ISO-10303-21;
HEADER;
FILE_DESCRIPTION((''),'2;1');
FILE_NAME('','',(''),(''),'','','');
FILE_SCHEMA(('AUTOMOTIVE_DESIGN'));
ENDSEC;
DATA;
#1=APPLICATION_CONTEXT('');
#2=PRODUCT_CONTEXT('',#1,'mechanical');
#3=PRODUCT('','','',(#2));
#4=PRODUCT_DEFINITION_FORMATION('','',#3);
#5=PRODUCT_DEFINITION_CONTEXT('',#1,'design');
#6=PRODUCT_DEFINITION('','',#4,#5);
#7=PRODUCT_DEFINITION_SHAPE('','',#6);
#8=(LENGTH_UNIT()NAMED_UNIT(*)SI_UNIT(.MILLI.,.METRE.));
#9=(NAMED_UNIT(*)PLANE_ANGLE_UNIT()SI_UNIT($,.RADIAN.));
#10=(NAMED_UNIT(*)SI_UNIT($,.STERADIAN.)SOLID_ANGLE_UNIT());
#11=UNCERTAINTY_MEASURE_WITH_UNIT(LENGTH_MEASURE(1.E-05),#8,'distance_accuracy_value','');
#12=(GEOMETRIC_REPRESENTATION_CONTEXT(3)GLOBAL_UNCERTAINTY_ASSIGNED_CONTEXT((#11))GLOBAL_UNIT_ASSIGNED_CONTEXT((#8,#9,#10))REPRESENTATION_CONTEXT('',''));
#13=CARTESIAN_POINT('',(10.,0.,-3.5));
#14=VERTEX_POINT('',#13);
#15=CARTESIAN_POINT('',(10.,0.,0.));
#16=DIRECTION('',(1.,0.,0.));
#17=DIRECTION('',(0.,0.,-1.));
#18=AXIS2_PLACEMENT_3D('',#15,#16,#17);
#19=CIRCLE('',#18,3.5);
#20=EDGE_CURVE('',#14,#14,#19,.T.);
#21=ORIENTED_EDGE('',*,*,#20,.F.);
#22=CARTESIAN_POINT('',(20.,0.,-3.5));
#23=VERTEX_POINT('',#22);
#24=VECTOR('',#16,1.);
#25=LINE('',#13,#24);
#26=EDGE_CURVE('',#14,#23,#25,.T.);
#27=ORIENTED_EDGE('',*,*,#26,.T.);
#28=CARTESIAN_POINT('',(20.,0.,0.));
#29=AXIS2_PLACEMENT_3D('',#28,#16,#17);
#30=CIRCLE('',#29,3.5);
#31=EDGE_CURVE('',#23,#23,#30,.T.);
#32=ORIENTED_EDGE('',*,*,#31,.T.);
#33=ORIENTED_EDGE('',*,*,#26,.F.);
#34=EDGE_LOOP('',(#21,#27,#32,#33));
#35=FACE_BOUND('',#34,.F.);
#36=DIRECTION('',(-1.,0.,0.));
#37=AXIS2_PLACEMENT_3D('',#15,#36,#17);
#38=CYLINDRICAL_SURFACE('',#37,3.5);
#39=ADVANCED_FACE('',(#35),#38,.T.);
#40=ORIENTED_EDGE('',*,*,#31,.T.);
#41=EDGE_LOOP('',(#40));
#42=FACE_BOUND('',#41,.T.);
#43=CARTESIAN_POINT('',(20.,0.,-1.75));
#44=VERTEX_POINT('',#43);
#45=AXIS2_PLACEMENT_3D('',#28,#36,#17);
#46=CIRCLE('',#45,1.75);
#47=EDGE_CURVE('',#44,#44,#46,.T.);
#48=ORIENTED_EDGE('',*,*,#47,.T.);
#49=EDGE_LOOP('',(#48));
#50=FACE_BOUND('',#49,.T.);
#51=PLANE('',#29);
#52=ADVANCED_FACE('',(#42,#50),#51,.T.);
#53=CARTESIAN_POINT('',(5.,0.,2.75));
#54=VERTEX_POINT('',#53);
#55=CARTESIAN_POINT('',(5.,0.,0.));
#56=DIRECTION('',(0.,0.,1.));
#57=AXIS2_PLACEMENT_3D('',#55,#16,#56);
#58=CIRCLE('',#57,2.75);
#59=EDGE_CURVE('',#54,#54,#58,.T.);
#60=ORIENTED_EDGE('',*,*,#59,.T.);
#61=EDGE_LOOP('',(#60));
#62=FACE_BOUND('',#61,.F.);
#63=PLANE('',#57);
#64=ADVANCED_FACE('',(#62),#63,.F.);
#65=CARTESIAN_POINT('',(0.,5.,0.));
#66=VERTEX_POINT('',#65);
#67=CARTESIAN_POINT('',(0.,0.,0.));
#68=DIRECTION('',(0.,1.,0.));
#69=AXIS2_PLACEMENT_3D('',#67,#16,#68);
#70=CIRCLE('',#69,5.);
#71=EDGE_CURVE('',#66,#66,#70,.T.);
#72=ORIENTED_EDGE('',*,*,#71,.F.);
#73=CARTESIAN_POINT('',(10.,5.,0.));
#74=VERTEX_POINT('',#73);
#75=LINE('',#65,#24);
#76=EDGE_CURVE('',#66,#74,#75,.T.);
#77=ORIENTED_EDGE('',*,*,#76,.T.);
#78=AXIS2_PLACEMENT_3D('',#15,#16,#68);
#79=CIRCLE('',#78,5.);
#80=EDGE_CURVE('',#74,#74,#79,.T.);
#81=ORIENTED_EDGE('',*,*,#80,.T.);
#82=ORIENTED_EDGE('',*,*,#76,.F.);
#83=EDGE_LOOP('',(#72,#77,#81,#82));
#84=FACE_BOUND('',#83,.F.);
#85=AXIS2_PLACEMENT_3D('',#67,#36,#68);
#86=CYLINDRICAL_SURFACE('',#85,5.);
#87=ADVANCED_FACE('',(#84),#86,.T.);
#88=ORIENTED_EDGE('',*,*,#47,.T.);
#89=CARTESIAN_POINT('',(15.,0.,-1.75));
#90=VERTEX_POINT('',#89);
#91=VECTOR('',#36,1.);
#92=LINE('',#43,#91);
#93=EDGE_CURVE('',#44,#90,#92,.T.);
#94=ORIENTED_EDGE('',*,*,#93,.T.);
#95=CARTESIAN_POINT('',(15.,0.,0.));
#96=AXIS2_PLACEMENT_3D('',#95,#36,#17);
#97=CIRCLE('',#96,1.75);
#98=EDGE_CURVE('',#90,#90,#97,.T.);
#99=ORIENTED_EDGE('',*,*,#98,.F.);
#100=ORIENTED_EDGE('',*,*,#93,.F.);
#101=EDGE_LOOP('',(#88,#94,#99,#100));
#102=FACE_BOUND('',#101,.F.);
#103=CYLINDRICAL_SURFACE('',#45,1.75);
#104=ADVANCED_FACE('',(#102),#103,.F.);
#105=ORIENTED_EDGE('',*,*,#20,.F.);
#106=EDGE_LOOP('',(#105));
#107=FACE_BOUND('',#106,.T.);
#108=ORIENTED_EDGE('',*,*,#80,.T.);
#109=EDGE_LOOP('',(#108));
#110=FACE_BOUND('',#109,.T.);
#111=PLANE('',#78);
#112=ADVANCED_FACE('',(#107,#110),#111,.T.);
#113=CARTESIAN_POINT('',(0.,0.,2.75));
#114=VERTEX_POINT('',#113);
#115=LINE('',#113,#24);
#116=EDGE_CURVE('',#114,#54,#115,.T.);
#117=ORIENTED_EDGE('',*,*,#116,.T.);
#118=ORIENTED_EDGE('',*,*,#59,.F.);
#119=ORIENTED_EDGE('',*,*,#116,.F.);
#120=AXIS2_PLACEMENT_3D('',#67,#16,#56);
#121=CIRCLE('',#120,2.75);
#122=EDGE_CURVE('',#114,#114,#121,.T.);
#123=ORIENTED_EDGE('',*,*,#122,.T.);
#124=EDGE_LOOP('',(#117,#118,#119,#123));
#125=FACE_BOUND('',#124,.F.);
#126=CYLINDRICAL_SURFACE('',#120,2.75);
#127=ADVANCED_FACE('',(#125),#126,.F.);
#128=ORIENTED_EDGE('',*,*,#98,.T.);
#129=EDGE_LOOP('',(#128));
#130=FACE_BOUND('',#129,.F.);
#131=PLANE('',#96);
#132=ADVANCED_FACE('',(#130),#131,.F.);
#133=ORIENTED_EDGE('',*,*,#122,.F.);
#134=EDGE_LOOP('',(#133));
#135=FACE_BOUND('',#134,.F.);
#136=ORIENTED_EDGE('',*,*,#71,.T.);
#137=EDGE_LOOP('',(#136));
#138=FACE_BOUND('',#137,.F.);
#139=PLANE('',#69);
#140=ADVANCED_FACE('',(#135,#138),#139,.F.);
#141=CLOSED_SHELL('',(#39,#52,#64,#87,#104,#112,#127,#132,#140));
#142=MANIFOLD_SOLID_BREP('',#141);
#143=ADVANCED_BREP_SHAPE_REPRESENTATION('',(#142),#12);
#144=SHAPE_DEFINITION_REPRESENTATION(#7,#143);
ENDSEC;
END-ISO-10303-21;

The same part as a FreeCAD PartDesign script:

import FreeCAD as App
import Part
import Sketcher
from FreeCAD import Vector
Q = App.Units.Quantity

doc = App.newDocument("Part")
body = doc.addObject("PartDesign::Body", "Body")

# Sketch on YZ plane
sketch1 = doc.addObject("Sketcher::SketchObject", "Sketch")
body.addObject(sketch1)
sketch1.AttachmentSupport = (doc.YZ_Plane, [""])
sketch1.MapMode = "FlatFace"
sketch1.addGeometry(Part.Circle(Vector(0, 0, 0), Vector(0, 0, 1), 5), False)
sketch1.addConstraint(Sketcher.Constraint("Coincident", 0, 3, -1, 1))
sketch1.addConstraint(Sketcher.Constraint("Diameter", 0, Q("10 mm")))
pad1 = doc.addObject("PartDesign::Pad", "Pad")
body.addObject(pad1)
pad1.Profile = sketch1
pad1.Length = 10

# Sketch on YZ plane
sketch2 = doc.addObject("Sketcher::SketchObject", "Sketch001")
body.addObject(sketch2)
sketch2.AttachmentSupport = (doc.YZ_Plane, [""])
sketch2.MapMode = "FlatFace"
sketch2.addGeometry(Part.Circle(Vector(0, 0, 0), Vector(0, 0, 1), 2.8), False)
sketch2.addConstraint(Sketcher.Constraint("Coincident", 0, 3, -1, 1))
sketch2.addConstraint(Sketcher.Constraint("Diameter", 0, Q("5.5 mm")))
doc.recompute()
hole = doc.addObject("PartDesign::Hole", "Hole")
body.addObject(hole)
hole.Profile = sketch2
hole.ThreadType = "None"
hole.Diameter = 5.5
hole.DepthType = "Dimension"
hole.Depth = 5
hole.DrillPoint = "Flat"
hole.Reversed = True

# Sketch on YZ plane
sketch3 = doc.addObject("Sketcher::SketchObject", "Sketch002")
body.addObject(sketch3)
sketch3.AttachmentSupport = (doc.YZ_Plane, [""])
sketch3.MapMode = "FlatFace"
sketch3.AttachmentOffset = App.Placement(Vector(0, 0, 10), App.Rotation())
sketch3.addGeometry(Part.Circle(Vector(0, 0, 0), Vector(0, 0, 1), 3.5), False)
sketch3.addConstraint(Sketcher.Constraint("Coincident", 0, 3, -1, 1))
sketch3.addConstraint(Sketcher.Constraint("Diameter", 0, Q("7 mm")))
pad2 = doc.addObject("PartDesign::Pad", "Pad001")
body.addObject(pad2)
pad2.Profile = sketch3
pad2.Length = 10

# Sketch on YZ plane
sketch4 = doc.addObject("Sketcher::SketchObject", "Sketch003")
body.addObject(sketch4)
sketch4.AttachmentSupport = (doc.YZ_Plane, [""])
sketch4.MapMode = "FlatFace"
sketch4.AttachmentOffset = App.Placement(Vector(0, 0, 20), App.Rotation())
sketch4.addGeometry(Part.Circle(Vector(0, 0, 0), Vector(0, 0, 1), 1.8), False)
sketch4.addConstraint(Sketcher.Constraint("Coincident", 0, 3, -1, 1))
sketch4.addConstraint(Sketcher.Constraint("Diameter", 0, Q("3.5 mm")))
doc.recompute()
hole2 = doc.addObject("PartDesign::Hole", "Hole001")
body.addObject(hole2)
hole2.Profile = sketch4
hole2.ThreadType = "None"
hole2.Diameter = 3.5
hole2.DepthType = "Dimension"
hole2.Depth = 5
hole2.DrillPoint = "Flat"

doc.recompute()
